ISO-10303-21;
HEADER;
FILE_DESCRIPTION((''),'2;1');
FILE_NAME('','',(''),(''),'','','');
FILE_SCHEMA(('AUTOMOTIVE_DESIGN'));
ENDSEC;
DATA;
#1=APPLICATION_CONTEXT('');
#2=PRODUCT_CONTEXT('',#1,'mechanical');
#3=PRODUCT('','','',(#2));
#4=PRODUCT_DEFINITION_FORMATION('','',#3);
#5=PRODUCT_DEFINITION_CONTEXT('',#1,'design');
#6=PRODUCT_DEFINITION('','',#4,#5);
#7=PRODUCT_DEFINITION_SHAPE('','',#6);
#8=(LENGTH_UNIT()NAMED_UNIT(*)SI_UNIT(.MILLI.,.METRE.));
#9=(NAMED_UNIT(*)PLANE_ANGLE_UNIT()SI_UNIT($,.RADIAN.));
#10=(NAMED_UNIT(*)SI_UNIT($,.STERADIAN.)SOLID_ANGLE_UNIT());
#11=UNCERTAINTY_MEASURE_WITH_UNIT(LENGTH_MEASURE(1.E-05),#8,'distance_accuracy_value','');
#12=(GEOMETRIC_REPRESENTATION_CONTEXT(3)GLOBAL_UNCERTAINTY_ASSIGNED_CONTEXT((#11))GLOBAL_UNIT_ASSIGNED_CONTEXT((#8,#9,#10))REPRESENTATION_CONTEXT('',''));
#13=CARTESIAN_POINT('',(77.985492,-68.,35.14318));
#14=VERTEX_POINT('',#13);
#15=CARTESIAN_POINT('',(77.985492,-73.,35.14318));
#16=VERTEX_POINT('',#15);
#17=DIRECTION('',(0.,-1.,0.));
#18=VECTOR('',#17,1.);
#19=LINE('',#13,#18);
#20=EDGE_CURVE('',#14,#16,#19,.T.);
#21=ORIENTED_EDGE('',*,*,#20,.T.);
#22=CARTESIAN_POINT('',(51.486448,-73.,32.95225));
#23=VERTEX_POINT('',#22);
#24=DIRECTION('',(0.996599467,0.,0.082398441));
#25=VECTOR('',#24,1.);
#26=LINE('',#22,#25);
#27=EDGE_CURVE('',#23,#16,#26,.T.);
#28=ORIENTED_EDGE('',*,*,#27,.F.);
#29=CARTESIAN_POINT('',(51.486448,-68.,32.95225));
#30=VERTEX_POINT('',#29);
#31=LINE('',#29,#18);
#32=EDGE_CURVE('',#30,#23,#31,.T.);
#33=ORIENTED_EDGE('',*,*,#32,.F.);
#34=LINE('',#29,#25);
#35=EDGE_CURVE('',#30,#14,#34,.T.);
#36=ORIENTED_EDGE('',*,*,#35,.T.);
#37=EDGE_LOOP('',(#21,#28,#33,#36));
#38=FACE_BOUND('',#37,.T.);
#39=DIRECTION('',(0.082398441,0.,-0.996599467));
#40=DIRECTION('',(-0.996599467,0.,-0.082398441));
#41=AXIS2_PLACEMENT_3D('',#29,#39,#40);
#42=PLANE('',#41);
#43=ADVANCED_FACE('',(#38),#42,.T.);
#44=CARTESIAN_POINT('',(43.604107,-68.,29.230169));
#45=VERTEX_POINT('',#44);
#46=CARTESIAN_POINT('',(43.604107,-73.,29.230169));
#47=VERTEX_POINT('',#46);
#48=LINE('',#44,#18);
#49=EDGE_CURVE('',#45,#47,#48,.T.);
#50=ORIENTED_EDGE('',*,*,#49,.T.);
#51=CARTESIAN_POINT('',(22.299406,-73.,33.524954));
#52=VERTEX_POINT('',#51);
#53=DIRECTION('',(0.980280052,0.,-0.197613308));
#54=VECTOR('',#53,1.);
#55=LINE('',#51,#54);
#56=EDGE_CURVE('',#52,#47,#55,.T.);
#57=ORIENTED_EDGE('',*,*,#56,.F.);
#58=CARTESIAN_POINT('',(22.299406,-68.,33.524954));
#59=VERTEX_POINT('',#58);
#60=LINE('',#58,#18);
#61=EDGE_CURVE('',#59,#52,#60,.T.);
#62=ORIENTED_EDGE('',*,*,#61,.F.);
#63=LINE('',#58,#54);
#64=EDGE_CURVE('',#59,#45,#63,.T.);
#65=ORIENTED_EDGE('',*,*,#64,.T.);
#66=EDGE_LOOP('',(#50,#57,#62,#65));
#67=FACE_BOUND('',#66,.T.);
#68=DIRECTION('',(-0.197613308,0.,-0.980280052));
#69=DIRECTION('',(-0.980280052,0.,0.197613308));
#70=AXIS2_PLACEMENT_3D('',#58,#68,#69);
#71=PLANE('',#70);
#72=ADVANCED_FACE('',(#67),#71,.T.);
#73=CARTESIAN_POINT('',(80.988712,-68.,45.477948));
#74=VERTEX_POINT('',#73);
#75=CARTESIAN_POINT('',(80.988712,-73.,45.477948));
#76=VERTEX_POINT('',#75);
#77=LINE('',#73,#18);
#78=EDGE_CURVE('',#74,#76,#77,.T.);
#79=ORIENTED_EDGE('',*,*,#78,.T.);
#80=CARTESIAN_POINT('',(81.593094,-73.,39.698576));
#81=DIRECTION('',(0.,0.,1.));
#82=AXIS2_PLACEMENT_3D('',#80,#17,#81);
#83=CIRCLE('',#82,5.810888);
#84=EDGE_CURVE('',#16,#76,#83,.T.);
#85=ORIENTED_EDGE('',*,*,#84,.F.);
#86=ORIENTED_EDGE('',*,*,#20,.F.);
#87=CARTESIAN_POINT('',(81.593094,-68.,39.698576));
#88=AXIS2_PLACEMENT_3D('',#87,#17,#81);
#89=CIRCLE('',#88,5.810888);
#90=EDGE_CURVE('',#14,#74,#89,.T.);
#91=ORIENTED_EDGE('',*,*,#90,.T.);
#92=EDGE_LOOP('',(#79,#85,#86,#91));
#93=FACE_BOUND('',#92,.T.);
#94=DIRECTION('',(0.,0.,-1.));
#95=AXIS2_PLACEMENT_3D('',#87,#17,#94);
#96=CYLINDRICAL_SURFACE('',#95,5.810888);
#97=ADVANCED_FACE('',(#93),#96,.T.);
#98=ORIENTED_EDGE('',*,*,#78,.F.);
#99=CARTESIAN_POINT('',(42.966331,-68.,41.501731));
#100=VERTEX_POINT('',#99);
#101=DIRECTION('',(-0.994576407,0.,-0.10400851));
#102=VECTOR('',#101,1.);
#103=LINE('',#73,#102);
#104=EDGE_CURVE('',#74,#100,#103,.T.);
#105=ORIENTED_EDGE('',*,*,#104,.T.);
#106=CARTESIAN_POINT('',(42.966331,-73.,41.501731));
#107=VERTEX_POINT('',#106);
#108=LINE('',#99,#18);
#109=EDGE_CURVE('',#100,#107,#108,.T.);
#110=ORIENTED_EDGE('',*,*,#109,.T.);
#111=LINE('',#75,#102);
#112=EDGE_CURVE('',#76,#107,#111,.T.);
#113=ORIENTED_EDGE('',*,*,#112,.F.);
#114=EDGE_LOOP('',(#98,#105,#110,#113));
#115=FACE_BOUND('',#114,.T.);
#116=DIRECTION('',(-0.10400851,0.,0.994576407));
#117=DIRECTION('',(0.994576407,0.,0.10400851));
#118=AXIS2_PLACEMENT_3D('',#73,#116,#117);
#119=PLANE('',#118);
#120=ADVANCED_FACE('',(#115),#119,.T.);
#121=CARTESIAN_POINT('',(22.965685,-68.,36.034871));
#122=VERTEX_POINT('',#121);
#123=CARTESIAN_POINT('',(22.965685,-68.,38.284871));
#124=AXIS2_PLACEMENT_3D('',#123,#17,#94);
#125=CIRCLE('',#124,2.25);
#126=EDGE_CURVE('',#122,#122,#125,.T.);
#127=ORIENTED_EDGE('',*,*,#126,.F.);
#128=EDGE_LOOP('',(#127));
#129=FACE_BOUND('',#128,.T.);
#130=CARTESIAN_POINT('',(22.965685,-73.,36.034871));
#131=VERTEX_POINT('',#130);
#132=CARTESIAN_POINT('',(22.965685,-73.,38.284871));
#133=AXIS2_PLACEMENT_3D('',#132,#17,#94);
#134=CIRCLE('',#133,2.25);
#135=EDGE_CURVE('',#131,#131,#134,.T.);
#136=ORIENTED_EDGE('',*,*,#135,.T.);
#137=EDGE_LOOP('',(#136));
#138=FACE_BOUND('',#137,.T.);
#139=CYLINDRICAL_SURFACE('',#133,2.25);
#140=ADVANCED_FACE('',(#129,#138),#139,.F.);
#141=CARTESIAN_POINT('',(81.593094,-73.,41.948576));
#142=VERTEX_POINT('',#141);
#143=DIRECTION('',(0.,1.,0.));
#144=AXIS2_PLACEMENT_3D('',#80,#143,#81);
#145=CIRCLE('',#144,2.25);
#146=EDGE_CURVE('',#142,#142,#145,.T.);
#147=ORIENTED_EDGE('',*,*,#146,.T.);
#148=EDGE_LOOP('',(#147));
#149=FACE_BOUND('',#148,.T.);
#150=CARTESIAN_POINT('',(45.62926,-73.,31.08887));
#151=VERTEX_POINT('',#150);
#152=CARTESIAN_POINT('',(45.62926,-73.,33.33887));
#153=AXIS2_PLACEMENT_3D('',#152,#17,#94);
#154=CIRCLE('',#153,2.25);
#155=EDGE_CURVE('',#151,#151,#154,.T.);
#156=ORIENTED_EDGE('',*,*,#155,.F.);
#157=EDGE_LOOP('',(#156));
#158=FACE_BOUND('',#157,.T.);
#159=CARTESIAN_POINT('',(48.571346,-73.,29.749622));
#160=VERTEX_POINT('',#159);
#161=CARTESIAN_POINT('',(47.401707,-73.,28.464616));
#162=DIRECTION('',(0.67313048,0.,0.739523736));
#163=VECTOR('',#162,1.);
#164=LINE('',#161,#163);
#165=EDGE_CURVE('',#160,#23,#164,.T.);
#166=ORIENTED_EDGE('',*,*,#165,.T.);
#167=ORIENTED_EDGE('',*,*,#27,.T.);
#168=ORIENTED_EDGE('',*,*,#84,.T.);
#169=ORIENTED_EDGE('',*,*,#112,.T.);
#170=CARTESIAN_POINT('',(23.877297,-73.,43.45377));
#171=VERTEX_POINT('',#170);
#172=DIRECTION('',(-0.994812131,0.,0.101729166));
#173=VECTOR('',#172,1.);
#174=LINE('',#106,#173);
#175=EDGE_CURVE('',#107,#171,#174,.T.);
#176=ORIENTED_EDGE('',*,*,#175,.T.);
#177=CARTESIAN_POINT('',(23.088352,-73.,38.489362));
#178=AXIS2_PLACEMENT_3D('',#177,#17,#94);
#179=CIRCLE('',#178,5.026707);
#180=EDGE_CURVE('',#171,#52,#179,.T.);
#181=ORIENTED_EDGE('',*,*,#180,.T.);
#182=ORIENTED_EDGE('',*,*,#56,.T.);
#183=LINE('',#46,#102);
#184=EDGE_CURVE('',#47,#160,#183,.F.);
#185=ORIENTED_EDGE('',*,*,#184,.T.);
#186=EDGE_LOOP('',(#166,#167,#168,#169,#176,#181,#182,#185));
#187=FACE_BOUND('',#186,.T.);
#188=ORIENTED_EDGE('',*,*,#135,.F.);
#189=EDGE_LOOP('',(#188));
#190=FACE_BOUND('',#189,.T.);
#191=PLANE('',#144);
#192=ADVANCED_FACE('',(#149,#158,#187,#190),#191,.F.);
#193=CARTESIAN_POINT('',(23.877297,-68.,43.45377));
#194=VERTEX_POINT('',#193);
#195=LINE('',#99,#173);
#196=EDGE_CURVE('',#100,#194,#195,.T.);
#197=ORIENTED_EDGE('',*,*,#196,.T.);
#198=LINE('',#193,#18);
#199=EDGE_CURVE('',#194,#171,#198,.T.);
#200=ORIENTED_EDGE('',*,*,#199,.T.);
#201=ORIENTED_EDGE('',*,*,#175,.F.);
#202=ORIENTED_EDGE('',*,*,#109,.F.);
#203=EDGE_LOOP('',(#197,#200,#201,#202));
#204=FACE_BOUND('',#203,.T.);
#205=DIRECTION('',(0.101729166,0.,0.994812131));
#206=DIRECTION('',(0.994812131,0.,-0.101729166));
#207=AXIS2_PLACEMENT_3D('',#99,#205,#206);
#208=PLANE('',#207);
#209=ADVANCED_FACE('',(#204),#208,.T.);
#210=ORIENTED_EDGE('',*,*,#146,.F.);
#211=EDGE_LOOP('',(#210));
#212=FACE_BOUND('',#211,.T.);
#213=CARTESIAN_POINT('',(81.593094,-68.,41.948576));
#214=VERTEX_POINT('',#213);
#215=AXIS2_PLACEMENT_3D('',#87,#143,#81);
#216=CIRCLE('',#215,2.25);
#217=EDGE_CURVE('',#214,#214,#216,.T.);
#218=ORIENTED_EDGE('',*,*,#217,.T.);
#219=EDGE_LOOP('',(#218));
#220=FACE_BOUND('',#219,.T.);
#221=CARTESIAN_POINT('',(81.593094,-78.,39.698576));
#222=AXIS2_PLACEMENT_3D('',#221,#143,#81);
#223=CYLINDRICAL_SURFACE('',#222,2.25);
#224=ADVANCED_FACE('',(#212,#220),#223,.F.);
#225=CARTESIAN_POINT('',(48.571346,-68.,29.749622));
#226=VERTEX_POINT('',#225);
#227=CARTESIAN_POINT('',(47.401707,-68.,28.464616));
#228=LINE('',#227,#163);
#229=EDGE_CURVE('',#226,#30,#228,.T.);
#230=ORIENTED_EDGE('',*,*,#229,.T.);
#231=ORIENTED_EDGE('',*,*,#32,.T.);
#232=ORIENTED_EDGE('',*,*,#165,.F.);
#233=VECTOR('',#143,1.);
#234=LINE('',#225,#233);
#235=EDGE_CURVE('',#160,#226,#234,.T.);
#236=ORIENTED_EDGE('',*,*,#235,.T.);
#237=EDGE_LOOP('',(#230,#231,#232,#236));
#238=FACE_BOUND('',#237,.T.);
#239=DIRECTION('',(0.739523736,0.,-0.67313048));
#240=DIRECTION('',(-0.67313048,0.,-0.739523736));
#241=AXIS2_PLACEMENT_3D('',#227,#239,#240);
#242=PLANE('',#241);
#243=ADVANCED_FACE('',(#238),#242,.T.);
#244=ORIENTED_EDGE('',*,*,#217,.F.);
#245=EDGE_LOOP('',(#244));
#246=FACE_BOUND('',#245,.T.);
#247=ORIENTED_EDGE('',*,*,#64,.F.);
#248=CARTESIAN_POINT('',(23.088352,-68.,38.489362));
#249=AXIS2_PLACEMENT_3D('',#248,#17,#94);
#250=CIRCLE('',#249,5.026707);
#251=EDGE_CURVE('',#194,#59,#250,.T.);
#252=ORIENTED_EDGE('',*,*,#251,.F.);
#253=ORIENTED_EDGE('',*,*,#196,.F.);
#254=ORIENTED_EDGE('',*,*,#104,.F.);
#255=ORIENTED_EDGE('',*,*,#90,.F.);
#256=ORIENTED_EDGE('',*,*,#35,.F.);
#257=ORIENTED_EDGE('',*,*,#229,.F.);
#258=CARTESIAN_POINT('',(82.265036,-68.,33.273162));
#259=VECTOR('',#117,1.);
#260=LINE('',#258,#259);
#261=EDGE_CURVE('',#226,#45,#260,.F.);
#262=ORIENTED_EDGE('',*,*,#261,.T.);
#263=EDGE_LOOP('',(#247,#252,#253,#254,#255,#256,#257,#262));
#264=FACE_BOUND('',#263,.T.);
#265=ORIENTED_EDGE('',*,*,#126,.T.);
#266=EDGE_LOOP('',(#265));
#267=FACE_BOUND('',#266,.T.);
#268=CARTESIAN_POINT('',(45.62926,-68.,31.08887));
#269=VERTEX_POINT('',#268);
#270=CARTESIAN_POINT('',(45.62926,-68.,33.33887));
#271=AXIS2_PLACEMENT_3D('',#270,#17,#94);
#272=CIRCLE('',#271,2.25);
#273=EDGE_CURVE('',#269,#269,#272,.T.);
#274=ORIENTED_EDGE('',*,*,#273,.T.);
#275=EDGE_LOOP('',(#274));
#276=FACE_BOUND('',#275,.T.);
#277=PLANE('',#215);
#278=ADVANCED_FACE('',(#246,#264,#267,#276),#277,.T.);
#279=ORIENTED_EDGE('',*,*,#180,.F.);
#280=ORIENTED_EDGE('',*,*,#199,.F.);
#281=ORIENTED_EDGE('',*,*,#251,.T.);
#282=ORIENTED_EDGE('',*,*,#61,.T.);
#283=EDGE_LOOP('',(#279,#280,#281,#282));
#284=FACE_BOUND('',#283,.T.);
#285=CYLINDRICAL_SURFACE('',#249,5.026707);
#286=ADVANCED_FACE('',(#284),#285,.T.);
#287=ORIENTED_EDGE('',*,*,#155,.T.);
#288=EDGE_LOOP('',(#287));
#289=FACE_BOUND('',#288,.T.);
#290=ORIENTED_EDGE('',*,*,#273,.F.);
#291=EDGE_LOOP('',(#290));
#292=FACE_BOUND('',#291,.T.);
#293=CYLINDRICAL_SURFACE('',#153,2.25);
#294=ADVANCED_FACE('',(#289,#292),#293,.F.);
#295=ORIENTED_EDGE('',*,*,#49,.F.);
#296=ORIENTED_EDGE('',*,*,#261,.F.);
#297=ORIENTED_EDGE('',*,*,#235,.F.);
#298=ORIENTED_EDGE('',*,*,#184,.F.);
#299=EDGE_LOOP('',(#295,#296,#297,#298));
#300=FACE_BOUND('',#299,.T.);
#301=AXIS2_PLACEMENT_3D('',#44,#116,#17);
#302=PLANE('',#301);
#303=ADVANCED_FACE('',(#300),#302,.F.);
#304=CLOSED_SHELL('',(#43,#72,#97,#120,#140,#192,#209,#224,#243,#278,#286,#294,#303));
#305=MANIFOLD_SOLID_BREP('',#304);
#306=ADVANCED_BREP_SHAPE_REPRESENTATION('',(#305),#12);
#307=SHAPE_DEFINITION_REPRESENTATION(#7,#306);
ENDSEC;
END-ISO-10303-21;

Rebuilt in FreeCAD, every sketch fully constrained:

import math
import FreeCAD as App
import Part
import Sketcher
from FreeCAD import Vector
Q = App.Units.Quantity


def edges_at(feature, points):
    """Names of the edges that pass closest to the given points."""
    edges = feature.Shape.Edges
    near = lambda p: min(range(len(edges)), key=lambda i: edges[i].distToShape(Part.Vertex(*p))[0])
    return sorted({f"Edge{near(p) + 1}" for p in points})

doc = App.newDocument("Part")
params = doc.addObject("Spreadsheet::Sheet", "Params")
for row, (alias, value) in enumerate([
    ("pad1_length", "5 mm"),
    ("sketch2_diameter", "4.5 mm"),
    ("hole_diameter", "4.5 mm"),
    ("sketch3_diameter", "4.5 mm"),
    ("hole2_diameter", "4.5 mm"),
    ("chamfer_size", "1.737612 mm"),
    ("chamfer_size2", "3.873995 mm"),
    ("sketch4_diameter", "4.5 mm"),
    ("pocket1_length", "10 mm"),
], start=1):
    params.set(f"A{row}", alias)
    params.set(f"B{row}", "=" + value)
    params.setAlias(f"B{row}", alias)

body = doc.addObject("PartDesign::Body", "Body")

# Sketch on XZ plane
sketch1 = body.newObject("Sketcher::SketchObject", "Sketch")
sketch1.AttachmentSupport = (doc.getObject("XZ_Plane"), [""])
sketch1.MapMode = "FlatFace"
sketch1.AttachmentOffset = App.Placement(Vector(0, 0, 73), App.Rotation())
sketch1.addGeometry(Part.LineSegment(Vector(47.401707, 28.464616, 0), Vector(51.486448, 32.95225, 0)), False)
sketch1.addGeometry(Part.LineSegment(Vector(51.486448, 32.95225, 0), Vector(77.985492, 35.14318, 0)), False)
sketch1.addGeometry(Part.ArcOfCircle(Part.Circle(Vector(81.593094, 39.698576, 0), Vector(0, 0, 1), 5.810888), math.radians(-128.377124), math.radians(95.970046)), False)
sketch1.addGeometry(Part.LineSegment(Vector(80.988712, 45.477948, 0), Vector(42.966331, 41.501731, 0)), False)
sketch1.addGeometry(Part.LineSegment(Vector(42.966331, 41.501731, 0), Vector(23.877297, 43.45377, 0)), False)
sketch1.addGeometry(Part.ArcOfCircle(Part.Circle(Vector(23.088352, 38.489362, 0), Vector(0, 0, 1), 5.026707), math.radians(80.970046), math.radians(260.970046)), False)
sketch1.addGeometry(Part.LineSegment(Vector(22.299406, 33.524954, 0), Vector(47.401707, 28.464616, 0)), False)
sketch1.addConstraint(Sketcher.Constraint("Coincident", 0, 2, 1, 1))
sketch1.addConstraint(Sketcher.Constraint("Coincident", 1, 2, 2, 1))
sketch1.addConstraint(Sketcher.Constraint("Coincident", 2, 2, 3, 1))
sketch1.addConstraint(Sketcher.Constraint("Coincident", 3, 2, 4, 1))
sketch1.addConstraint(Sketcher.Constraint("Coincident", 4, 2, 5, 1))
sketch1.addConstraint(Sketcher.Constraint("Coincident", 5, 2, 6, 1))
sketch1.addConstraint(Sketcher.Constraint("Coincident", 6, 2, 0, 1))
sketch1.addConstraint(Sketcher.Constraint("Radius", 2, Q("5.810888 mm")))
sketch1.addConstraint(Sketcher.Constraint("Radius", 5, Q("5.026707 mm")))
sketch1.addConstraint(Sketcher.Constraint("DistanceX", 1, 2, 2, 3, Q("3.607602 mm")))
sketch1.addConstraint(Sketcher.Constraint("DistanceY", 0, 2, 2, 2, Q("12.525698 mm")))
sketch1.addConstraint(Sketcher.Constraint("DistanceX", 5, 2, 6, 2, Q("25.102301 mm")))
sketch1.addConstraint(Sketcher.Constraint("Distance", 4, Q("19.188581 mm")))
sketch1.addConstraint(Sketcher.Constraint("DistanceX", -1, 1, 5, 3, Q("23.088352 mm")))
sketch1.addConstraint(Sketcher.Constraint("DistanceY", -1, 1, 0, 2, Q("32.95225 mm")))
sketch1.addConstraint(Sketcher.Constraint("DistanceY", -1, 1, 1, 2, Q("35.14318 mm")))
sketch1.addConstraint(Sketcher.Constraint("DistanceX", -1, 1, 3, 2, Q("42.966331 mm")))
sketch1.addConstraint(Sketcher.Constraint("DistanceY", -1, 1, 3, 2, Q("41.501731 mm")))
sketch1.addConstraint(Sketcher.Constraint("DistanceY", -1, 1, 4, 2, Q("43.45377 mm")))
sketch1.addConstraint(Sketcher.Constraint("DistanceX", 5, 3, 1, 2, Q("54.897141 mm")))
sketch1.addConstraint(Sketcher.Constraint("DistanceX", 4, 2, 0, 2, Q("27.609151 mm")))
sketch1.addConstraint(Sketcher.Constraint("DistanceX", 5, 2, 4, 2, Q("1.577891 mm")))
sketch1.addConstraint(Sketcher.Constraint("DistanceY", 6, 2, 5, 2, Q("5.060338 mm")))
pad1 = body.newObject("PartDesign::Pad", "Pad")
pad1.Profile = sketch1
pad1.setExpression("Length", "Params.pad1_length")
pad1.Reversed = True

# Sketch on XZ plane
sketch2 = body.newObject("Sketcher::SketchObject", "Sketch001")
sketch2.AttachmentSupport = (doc.getObject("XZ_Plane"), [""])
sketch2.MapMode = "FlatFace"
sketch2.AttachmentOffset = App.Placement(Vector(0, 0, 73), App.Rotation())
sketch2.addGeometry(Part.Circle(Vector(45.6, 33.3, 0), Vector(0, 0, 1), 2.2), False)
sketch2.addConstraint(Sketcher.Constraint("Diameter", 0, Q("4.5 mm")))
sketch2.addConstraint(Sketcher.Constraint("DistanceX", -1, 1, 0, 3, Q("45.62926 mm")))
sketch2.addConstraint(Sketcher.Constraint("DistanceY", -1, 1, 0, 3, Q("33.33887 mm")))
sketch2.setExpression("Constraints[0]", "Params.sketch2_diameter")
doc.recompute()
hole = body.newObject("PartDesign::Hole", "Hole")
hole.Profile = sketch2
hole.ThreadType = "None"
hole.setExpression("Diameter", "Params.hole_diameter")
hole.DepthType = "ThroughAll"

# Sketch on XZ plane
sketch3 = body.newObject("Sketcher::SketchObject", "Sketch002")
sketch3.AttachmentSupport = (doc.getObject("XZ_Plane"), [""])
sketch3.MapMode = "FlatFace"
sketch3.AttachmentOffset = App.Placement(Vector(0, 0, 73), App.Rotation())
sketch3.addGeometry(Part.Circle(Vector(23, 38.3, 0), Vector(0, 0, 1), 2.2), False)
sketch3.addConstraint(Sketcher.Constraint("Diameter", 0, Q("4.5 mm")))
sketch3.addConstraint(Sketcher.Constraint("DistanceY", -1, 1, 0, 3, Q("38.284871 mm")))
sketch3.addConstraint(Sketcher.Constraint("DistanceX", -1, 1, 0, 3, Q("22.965685 mm")))
sketch3.setExpression("Constraints[0]", "Params.sketch3_diameter")
doc.recompute()
hole2 = body.newObject("PartDesign::Hole", "Hole001")
hole2.Profile = sketch3
hole2.ThreadType = "None"
hole2.setExpression("Diameter", "Params.hole2_diameter")
hole2.DepthType = "ThroughAll"
doc.recompute()

chamfer = body.newObject("PartDesign::Chamfer", "Chamfer")
chamfer.Base = (hole2, edges_at(hole2, [(47.402, -70.5, 28.465)]))
chamfer.ChamferType = "Two distances"
chamfer.setExpression("Size", "Params.chamfer_size")
chamfer.setExpression("Size2", "Params.chamfer_size2")

# Sketch on XZ plane
sketch4 = body.newObject("Sketcher::SketchObject", "Sketch003")
sketch4.AttachmentSupport = (doc.getObject("XZ_Plane"), [""])
sketch4.MapMode = "FlatFace"
sketch4.AttachmentOffset = App.Placement(Vector(0, 0, 68), App.Rotation())
sketch4.addGeometry(Part.Circle(Vector(81.6, 39.7, 0), Vector(0, 0, 1), 2.2), False)
sketch4.addConstraint(Sketcher.Constraint("Diameter", 0, Q("4.5 mm")))
sketch4.addConstraint(Sketcher.Constraint("DistanceX", -1, 1, 0, 3, Q("81.593094 mm")))
sketch4.addConstraint(Sketcher.Constraint("DistanceY", -1, 1, 0, 3, Q("39.698576 mm")))
sketch4.setExpression("Constraints[0]", "Params.sketch4_diameter")
pocket1 = body.newObject("PartDesign::Pocket", "Pocket")
pocket1.Profile = sketch4
pocket1.setExpression("Length", "Params.pocket1_length")
pocket1.Reversed = True

doc.recompute()
